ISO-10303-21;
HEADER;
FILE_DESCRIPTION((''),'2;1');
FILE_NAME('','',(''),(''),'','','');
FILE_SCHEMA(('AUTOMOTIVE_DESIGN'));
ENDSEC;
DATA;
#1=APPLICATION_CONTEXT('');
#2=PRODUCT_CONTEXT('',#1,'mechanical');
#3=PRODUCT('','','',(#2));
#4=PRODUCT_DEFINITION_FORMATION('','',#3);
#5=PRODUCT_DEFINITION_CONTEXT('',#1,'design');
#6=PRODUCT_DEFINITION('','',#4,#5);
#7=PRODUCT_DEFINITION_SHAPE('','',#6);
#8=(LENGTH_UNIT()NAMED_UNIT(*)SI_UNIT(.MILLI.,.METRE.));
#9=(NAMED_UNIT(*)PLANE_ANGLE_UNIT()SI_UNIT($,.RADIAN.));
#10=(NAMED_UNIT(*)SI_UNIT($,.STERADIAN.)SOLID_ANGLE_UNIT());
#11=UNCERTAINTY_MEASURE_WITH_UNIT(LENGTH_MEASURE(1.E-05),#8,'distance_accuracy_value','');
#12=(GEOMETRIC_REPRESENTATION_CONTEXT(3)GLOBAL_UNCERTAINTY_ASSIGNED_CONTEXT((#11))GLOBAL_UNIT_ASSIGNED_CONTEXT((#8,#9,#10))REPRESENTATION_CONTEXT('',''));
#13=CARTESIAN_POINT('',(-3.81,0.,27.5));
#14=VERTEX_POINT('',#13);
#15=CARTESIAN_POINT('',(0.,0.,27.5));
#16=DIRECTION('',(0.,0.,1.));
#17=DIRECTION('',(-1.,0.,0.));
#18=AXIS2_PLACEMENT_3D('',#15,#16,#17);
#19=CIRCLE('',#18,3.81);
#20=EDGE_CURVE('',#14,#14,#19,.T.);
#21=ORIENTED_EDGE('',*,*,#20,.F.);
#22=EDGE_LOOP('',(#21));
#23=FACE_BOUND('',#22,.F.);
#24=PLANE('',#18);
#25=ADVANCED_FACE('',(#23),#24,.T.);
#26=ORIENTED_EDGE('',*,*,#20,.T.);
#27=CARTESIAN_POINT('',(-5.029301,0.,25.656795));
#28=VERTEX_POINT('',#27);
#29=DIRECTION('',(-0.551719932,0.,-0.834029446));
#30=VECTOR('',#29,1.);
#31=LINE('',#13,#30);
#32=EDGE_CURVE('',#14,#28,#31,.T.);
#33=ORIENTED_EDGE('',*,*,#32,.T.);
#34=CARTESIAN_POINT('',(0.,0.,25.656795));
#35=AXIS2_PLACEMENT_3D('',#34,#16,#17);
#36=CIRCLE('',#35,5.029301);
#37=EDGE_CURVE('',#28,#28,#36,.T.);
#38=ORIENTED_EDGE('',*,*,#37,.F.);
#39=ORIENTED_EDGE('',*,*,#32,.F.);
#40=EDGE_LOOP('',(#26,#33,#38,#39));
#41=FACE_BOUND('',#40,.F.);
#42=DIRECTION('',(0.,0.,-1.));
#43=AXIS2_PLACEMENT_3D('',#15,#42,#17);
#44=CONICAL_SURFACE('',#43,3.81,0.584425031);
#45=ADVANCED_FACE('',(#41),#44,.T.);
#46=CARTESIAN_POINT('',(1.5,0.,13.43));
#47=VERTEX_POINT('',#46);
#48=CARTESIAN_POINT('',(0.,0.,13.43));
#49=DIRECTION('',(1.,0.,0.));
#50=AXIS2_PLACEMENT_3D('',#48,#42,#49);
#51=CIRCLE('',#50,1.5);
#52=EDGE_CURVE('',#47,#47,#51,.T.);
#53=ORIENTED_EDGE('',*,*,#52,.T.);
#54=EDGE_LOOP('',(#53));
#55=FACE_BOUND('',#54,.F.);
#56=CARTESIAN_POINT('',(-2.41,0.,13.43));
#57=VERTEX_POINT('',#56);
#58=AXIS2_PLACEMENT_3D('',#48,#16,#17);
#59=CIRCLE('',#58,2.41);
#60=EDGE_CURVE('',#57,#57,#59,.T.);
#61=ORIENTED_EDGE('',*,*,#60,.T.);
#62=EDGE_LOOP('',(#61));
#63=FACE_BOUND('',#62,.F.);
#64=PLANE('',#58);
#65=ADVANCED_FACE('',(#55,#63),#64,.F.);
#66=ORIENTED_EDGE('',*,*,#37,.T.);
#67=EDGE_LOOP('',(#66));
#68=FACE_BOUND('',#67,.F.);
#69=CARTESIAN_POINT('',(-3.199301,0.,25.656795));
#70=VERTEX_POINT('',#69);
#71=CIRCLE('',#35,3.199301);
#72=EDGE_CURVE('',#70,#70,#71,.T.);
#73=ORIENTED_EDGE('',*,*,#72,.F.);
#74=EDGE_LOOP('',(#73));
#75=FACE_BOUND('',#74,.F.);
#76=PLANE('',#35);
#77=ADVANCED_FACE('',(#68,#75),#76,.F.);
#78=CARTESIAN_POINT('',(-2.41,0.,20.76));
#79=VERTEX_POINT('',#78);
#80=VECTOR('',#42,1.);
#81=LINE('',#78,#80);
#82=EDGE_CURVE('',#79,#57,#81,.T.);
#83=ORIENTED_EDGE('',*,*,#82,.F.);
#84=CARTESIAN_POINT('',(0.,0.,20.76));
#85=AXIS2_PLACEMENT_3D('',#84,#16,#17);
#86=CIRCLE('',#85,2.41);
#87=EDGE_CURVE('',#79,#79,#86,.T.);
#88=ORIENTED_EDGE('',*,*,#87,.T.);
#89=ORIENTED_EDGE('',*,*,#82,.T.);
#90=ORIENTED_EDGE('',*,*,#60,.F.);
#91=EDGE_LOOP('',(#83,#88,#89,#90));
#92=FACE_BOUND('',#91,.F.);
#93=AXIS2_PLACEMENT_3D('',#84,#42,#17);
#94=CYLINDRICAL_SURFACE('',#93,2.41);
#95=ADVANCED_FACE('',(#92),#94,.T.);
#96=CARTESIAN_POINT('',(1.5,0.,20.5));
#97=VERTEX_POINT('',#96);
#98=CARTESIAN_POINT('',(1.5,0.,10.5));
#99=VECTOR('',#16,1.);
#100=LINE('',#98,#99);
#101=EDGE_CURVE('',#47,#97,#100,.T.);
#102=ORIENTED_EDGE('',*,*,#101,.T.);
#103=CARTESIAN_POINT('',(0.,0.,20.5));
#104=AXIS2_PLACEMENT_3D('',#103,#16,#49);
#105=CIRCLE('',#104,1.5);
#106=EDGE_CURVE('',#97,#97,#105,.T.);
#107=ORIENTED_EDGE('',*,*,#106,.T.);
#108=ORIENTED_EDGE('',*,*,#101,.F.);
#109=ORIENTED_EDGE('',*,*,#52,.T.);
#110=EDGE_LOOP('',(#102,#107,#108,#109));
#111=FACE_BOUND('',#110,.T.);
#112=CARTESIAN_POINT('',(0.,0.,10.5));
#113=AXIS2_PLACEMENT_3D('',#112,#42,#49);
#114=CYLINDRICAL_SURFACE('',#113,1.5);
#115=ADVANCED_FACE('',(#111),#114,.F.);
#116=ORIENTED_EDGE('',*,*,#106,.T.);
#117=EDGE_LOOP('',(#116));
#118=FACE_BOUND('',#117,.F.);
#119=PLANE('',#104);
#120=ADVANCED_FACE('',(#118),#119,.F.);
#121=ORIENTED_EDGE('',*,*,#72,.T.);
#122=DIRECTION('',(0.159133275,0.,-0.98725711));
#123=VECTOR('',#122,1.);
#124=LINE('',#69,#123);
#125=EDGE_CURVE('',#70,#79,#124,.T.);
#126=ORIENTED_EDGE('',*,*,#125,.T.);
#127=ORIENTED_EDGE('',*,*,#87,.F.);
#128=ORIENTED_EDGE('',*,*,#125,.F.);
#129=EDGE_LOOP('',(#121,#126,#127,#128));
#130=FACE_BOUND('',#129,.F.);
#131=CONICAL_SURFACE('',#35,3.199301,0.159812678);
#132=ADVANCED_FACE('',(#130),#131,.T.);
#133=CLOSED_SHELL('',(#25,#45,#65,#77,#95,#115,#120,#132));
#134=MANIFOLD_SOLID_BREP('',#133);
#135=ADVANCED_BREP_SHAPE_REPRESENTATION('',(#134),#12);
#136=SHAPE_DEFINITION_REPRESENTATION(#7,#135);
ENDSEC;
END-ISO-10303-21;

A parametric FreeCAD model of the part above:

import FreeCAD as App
import Part
import Sketcher

V = App.Vector


def add_polygon(sketch, points):
    """Adds a closed chain of lines whose ends are joined by coincident constraints."""
    first, n = sketch.GeometryCount, len(points)
    for a, b in zip(points, points[1:] + points[:1]):
        sketch.addGeometry(Part.LineSegment(App.Vector(*a, 0), App.Vector(*b, 0)), False)
    for i in range(n):
        sketch.addConstraint(Sketcher.Constraint("Coincident", first + i, 2, first + (i + 1) % n, 1))

doc = App.newDocument("Part")
body = doc.addObject("PartDesign::Body", "Body")

sketch1 = body.newObject("Sketcher::SketchObject", "Sketch")
sketch1.AttachmentSupport = (doc.getObject("XY_Plane"), [""])
sketch1.MapMode = "FlatFace"
sketch1.AttachmentOffset = App.Placement(V(0, 0, -17), App.Rotation())
sketch1.addGeometry(Part.Circle(V(0, 0, 0), V(0, 0, 1), 1.5), False)
sketch1.addConstraint(Sketcher.Constraint("Coincident", 0, 3, -1, 1))
sketch1.addConstraint(Sketcher.Constraint("Diameter", 0, 3.0))
pad1 = body.newObject("PartDesign::Pad", "Pad")
pad1.Profile = sketch1
pad1.Length = 10
body2 = doc.addObject("PartDesign::Body", "Body001")

sketch2 = body2.newObject("Sketcher::SketchObject", "Sketch001")
sketch2.AttachmentSupport = (doc.getObject("XZ_Plane001"), [""])
sketch2.MapMode = "FlatFace"
add_polygon(sketch2, [(0, 0), (-3.81, 0), (-5.029301, -1.843205), (-3.199301, -1.843205), (-2.41, -6.74), (-2.41, -14.07), (0, -14.07)])
sketch2.addConstraint(Sketcher.Constraint("Horizontal", 0))
sketch2.addConstraint(Sketcher.Constraint("Horizontal", 2))
sketch2.addConstraint(Sketcher.Constraint("Vertical", 4))
sketch2.addConstraint(Sketcher.Constraint("Horizontal", 5))
sketch2.addConstraint(Sketcher.Constraint("Vertical", 6))
sketch2.addConstraint(Sketcher.Constraint("Coincident", 6, 2, -1, 1))
sketch2.addConstraint(Sketcher.Constraint("DistanceX", 0, 2, 0, 1, 3.81))
sketch2.addConstraint(Sketcher.Constraint("DistanceX", 2, 1, 2, 2, 1.83))
sketch2.addConstraint(Sketcher.Constraint("DistanceX", 5, 1, 5, 2, 2.41))
sketch2.addConstraint(Sketcher.Constraint("DistanceY", 4, 2, 4, 1, 7.33))
sketch2.addConstraint(Sketcher.Constraint("DistanceY", 6, 1, 6, 2, 14.07))
sketch2.addConstraint(Sketcher.Constraint("Distance", 1, 2.21))
sketch2.addConstraint(Sketcher.Constraint("Distance", 3, 4.96))
revolution = body2.newObject("PartDesign::Revolution", "Revolution")
revolution.Profile = sketch2
revolution.ReferenceAxis = (sketch2, ["V_Axis"])
revolution.Angle = 360
doc.recompute()

boolean = body2.newObject("PartDesign::Boolean", "Boolean")
boolean.Type = "Cut"
boolean.addObjects([body])
body3 = doc.addObject("PartDesign::Body", "Body002")
doc.recompute()

body2.Placement = App.Placement(V(0, 0, 27.5), App.Rotation(V(0, 0, 1), 0))
boolean2 = body3.newObject("PartDesign::Boolean", "Boolean001")
boolean2.Type = "Fuse"
boolean2.addObjects([body2])

doc.recompute()
